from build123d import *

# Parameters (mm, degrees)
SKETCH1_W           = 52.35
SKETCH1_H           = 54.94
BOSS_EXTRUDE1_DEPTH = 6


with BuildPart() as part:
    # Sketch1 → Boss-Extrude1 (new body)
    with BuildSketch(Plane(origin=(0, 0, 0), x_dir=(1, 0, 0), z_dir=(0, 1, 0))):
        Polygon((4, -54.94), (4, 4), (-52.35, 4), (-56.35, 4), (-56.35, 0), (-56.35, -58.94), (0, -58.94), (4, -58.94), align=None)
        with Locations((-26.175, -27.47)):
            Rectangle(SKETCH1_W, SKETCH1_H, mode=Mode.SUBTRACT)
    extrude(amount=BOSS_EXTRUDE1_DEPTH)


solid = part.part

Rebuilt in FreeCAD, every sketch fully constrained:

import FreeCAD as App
import Part
import Sketcher

V = App.Vector


def add_polygon(sketch, points):
    """Adds a closed chain of lines whose ends are joined by coincident constraints."""
    first, n = sketch.GeometryCount, len(points)
    for a, b in zip(points, points[1:] + points[:1]):
        sketch.addGeometry(Part.LineSegment(App.Vector(*a, 0), App.Vector(*b, 0)), False)
    for i in range(n):
        sketch.addConstraint(Sketcher.Constraint("Coincident", first + i, 2, first + (i + 1) % n, 1))

doc = App.newDocument("Part")
params = doc.addObject("Spreadsheet::Sheet", "Params")
for row, (alias, value) in enumerate([
    ("sketch1_width", "60.35 mm"),
    ("sketch1_height", "62.94 mm"),
    ("pad1_length", "6 mm"),
], start=1):
    params.set(f"A{row}", alias)
    params.set(f"B{row}", "=" + value)
    params.setAlias(f"B{row}", alias)

body = doc.addObject("PartDesign::Body", "Body")

sketch1 = doc.addObject("Sketcher::SketchObject", "Sketch")
body.addObject(sketch1)
sketch1.AttachmentSupport = (doc.XZ_Plane, [""])
sketch1.MapMode = "FlatFace"
add_polygon(sketch1, [(4, -4), (-56.35, -4), (-56.35, 58.94), (4, 58.94)])
add_polygon(sketch1, [(0, 54.94), (-52.35, 54.94), (-52.35, 0), (0, 0)])
sketch1.addConstraint(Sketcher.Constraint("Horizontal", 0))
sketch1.addConstraint(Sketcher.Constraint("Vertical", 1))
sketch1.addConstraint(Sketcher.Constraint("Horizontal", 2))
sketch1.addConstraint(Sketcher.Constraint("Vertical", 3))
sketch1.addConstraint(Sketcher.Constraint("Horizontal", 4))
sketch1.addConstraint(Sketcher.Constraint("Vertical", 5))
sketch1.addConstraint(Sketcher.Constraint("Horizontal", 6))
sketch1.addConstraint(Sketcher.Constraint("Vertical", 7))
sketch1.addConstraint(Sketcher.Constraint("Coincident", 6, 2, -1, 1))
sketch1.addConstraint(Sketcher.Constraint("DistanceY", 0, 2, -1, 1, 4.0))
sketch1.addConstraint(Sketcher.Constraint("DistanceX", -1, 1, 2, 2, 4.0))
sketch1.addConstraint(Sketcher.Constraint("DistanceX", 1, 2, 4, 2, 4.0))
sketch1.addConstraint(Sketcher.Constraint("DistanceY", 4, 2, 1, 2, 4.0))
sketch1.addConstraint(Sketcher.Constraint("DistanceX", 0, 2, 0, 1, 60.35))
sketch1.addConstraint(Sketcher.Constraint("DistanceY", 1, 1, 1, 2, 62.94))
sketch1.setExpression("Constraints[21]", "Params.sketch1_width")
sketch1.setExpression("Constraints[22]", "Params.sketch1_height")
pad1 = doc.addObject("PartDesign::Pad", "Pad")
body.addObject(pad1)
pad1.Profile = sketch1
pad1.setExpression("Length", "Params.pad1_length")
pad1.Reversed = True

doc.recompute()
